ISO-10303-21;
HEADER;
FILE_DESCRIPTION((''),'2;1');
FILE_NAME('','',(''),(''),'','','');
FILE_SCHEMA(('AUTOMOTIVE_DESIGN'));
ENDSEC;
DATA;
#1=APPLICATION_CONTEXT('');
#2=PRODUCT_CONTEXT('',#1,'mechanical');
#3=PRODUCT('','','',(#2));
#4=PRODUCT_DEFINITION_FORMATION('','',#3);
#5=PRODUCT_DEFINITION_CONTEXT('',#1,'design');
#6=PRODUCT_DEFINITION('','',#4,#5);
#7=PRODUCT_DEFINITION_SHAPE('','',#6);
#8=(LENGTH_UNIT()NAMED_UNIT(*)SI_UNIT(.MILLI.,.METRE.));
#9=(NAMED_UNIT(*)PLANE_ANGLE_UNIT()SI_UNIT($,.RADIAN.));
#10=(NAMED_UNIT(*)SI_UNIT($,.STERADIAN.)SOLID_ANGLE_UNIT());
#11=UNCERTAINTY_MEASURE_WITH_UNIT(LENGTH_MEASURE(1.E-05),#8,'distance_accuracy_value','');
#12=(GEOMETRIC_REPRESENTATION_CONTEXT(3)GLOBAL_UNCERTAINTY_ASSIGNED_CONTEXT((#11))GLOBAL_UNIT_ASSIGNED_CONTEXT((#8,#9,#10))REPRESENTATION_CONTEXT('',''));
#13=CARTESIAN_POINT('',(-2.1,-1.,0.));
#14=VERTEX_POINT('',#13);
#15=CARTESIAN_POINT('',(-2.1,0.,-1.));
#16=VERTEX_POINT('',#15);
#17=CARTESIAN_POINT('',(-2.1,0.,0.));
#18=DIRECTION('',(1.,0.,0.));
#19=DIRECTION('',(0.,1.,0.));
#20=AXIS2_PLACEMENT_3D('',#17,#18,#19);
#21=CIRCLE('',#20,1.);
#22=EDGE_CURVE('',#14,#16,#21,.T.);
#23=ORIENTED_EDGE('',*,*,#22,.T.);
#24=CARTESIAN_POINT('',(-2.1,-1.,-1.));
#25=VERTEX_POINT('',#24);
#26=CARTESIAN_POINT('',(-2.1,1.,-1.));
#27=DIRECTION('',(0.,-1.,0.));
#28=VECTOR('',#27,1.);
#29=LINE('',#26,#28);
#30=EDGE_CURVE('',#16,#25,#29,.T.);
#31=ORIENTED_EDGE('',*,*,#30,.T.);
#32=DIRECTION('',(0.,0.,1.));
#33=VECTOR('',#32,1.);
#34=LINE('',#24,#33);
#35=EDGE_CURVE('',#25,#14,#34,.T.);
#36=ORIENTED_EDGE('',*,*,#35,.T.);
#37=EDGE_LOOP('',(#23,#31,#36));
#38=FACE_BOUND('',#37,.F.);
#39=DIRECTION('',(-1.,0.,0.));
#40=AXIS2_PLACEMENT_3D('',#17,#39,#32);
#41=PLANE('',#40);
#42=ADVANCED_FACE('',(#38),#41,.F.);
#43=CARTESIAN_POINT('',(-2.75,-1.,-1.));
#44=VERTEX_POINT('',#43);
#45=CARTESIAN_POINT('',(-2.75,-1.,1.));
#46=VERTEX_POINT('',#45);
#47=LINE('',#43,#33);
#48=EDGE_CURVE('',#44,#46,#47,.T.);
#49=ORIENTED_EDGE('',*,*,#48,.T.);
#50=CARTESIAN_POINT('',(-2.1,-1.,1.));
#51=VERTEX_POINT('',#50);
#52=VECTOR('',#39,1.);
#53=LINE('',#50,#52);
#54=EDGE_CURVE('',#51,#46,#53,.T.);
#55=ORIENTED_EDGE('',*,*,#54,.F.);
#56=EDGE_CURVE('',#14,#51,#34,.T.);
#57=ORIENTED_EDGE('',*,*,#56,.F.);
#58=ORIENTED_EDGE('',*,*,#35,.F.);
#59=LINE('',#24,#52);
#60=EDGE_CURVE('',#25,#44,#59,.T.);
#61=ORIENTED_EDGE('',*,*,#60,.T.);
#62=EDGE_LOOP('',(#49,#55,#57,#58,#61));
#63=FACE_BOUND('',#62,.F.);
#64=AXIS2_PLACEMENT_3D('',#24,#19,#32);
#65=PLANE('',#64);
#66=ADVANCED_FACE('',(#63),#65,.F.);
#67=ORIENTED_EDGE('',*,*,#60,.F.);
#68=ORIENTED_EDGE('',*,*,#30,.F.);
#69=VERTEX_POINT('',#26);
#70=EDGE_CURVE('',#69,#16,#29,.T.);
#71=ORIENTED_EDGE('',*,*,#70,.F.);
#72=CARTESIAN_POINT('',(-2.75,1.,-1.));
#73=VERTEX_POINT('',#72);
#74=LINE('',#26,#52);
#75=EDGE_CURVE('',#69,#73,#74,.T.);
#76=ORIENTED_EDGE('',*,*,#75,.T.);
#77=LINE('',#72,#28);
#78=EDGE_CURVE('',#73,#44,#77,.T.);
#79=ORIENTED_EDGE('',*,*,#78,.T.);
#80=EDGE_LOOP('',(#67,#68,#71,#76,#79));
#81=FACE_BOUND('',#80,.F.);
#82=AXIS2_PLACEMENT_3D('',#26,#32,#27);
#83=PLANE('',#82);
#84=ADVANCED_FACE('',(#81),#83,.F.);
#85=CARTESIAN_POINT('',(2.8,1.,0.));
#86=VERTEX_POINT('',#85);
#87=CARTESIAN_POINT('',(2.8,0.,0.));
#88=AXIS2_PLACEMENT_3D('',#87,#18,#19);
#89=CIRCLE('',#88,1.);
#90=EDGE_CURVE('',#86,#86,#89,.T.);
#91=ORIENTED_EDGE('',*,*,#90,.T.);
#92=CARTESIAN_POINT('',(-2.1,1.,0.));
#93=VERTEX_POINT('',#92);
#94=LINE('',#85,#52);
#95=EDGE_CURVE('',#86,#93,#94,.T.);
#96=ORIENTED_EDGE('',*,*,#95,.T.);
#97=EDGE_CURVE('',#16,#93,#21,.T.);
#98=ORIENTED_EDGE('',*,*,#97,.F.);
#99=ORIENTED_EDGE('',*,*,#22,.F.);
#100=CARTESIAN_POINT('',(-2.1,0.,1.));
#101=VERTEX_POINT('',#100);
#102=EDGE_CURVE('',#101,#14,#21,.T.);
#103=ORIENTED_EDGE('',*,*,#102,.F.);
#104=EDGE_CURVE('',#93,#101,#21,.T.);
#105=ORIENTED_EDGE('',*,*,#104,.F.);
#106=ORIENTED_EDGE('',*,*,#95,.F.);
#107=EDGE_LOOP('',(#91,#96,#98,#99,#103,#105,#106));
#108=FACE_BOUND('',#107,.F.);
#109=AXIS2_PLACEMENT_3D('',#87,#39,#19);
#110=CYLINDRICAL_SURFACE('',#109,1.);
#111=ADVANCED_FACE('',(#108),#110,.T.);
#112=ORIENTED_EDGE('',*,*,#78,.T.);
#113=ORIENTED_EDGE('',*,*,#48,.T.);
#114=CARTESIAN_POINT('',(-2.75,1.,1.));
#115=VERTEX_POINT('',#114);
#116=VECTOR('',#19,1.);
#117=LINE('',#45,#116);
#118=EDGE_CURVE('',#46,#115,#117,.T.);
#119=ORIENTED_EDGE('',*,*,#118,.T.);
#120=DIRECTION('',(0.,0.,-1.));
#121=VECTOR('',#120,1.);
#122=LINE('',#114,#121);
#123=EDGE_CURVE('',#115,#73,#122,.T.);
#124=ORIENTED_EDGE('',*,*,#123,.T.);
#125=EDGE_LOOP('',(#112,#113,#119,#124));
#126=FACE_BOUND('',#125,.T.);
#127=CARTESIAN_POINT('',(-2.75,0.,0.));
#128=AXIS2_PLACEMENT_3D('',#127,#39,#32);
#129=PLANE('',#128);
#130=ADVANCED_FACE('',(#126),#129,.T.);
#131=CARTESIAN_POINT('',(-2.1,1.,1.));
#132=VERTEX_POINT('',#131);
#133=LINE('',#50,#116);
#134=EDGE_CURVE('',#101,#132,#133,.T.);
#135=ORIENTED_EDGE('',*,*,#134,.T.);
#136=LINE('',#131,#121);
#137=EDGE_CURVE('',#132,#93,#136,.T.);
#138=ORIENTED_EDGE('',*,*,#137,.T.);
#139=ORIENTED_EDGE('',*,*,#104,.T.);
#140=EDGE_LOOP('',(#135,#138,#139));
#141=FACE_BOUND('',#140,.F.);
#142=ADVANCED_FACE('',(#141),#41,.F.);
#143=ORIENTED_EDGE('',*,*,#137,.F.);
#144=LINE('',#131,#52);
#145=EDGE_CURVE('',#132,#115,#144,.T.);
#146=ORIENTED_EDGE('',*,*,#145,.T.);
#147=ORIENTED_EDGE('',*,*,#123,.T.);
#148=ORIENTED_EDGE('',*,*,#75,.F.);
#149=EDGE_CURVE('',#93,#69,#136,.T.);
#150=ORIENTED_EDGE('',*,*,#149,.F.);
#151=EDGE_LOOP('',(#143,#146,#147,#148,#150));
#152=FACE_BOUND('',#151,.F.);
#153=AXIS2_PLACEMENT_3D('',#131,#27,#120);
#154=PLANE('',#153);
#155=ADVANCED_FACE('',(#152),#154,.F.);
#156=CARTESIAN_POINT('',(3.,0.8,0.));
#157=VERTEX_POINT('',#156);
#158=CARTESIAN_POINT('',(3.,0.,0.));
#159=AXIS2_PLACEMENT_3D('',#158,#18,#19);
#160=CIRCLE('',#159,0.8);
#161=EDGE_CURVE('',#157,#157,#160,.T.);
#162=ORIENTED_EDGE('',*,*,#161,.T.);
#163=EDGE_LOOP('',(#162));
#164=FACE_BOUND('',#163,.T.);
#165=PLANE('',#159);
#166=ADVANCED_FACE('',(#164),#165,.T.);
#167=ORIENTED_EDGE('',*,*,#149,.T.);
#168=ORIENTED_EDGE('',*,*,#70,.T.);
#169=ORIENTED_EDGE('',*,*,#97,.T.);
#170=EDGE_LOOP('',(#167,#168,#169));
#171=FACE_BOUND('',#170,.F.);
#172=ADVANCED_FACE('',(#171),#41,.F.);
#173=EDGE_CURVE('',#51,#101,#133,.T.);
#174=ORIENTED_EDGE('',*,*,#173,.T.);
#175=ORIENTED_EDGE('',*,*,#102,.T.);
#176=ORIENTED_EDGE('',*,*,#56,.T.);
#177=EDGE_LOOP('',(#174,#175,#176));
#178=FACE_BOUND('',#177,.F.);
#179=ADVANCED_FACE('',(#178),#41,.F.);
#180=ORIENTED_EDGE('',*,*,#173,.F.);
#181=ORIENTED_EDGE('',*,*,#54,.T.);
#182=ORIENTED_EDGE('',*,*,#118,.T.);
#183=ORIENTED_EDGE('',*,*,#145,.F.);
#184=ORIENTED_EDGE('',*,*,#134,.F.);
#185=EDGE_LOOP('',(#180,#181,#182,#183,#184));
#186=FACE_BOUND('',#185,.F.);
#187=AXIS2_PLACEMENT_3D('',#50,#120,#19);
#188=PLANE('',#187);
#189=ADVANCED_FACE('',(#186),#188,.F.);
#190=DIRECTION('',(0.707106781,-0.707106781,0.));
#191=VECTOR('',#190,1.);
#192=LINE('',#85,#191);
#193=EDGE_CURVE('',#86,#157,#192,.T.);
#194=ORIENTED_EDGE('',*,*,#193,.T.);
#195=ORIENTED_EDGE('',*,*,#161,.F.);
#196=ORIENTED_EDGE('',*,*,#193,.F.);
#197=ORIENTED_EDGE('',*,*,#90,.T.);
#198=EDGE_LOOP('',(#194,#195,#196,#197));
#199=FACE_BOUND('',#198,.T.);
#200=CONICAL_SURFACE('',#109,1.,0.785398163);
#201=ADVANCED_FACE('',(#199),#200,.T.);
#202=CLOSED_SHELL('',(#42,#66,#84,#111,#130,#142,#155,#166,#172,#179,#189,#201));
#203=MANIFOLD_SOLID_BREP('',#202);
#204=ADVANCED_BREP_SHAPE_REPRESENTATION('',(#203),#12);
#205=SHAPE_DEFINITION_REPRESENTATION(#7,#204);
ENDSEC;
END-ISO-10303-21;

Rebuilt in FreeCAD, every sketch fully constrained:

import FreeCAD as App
import Part
import Sketcher
from FreeCAD import Vector
Q = App.Units.Quantity


def add_polygon(sketch, points):
    """Adds a closed chain of lines whose ends are joined by coincident constraints."""
    first, n = sketch.GeometryCount, len(points)
    for a, b in zip(points, points[1:] + points[:1]):
        sketch.addGeometry(Part.LineSegment(App.Vector(*a, 0), App.Vector(*b, 0)), False)
    for i in range(n):
        sketch.addConstraint(Sketcher.Constraint("Coincident", first + i, 2, first + (i + 1) % n, 1))

doc = App.newDocument("Part")
body = doc.addObject("PartDesign::Body", "Body")

sketch1 = doc.addObject("Sketcher::SketchObject", "Sketch")
body.addObject(sketch1)
sketch1.AttachmentSupport = (doc.XY_Plane, [""])
sketch1.MapMode = "FlatFace"
add_polygon(sketch1, [(-2.1, 1), (-2.1, 0), (3, 0), (3, 0.8), (2.8, 1)])
sketch1.addConstraint(Sketcher.Constraint("Vertical", 0))
sketch1.addConstraint(Sketcher.Constraint("Horizontal", 1))
sketch1.addConstraint(Sketcher.Constraint("Vertical", 2))
sketch1.addConstraint(Sketcher.Constraint("Horizontal", 4))
sketch1.addConstraint(Sketcher.Constraint("PointOnObject", 0, 2, -1))
sketch1.addConstraint(Sketcher.Constraint("DistanceX", 0, 2, -1, 1, Q("2.1 mm")))
sketch1.addConstraint(Sketcher.Constraint("DistanceX", -1, 1, 3, 2, Q("2.8 mm")))
sketch1.addConstraint(Sketcher.Constraint("DistanceX", 3, 2, 2, 2, Q("0.2 mm")))
sketch1.addConstraint(Sketcher.Constraint("DistanceY", 2, 2, 3, 2, Q("0.2 mm")))
sketch1.addConstraint(Sketcher.Constraint("DistanceY", 0, 2, 0, 1, Q("1 mm")))
revolution = doc.addObject("PartDesign::Revolution", "Revolution")
body.addObject(revolution)
revolution.Profile = sketch1
revolution.ReferenceAxis = (sketch1, ["H_Axis"])
revolution.Angle = 360

sketch2 = doc.addObject("Sketcher::SketchObject", "Sketch001")
body.addObject(sketch2)
sketch2.AttachmentSupport = (doc.YZ_Plane, [""])
sketch2.MapMode = "FlatFace"
sketch2.AttachmentOffset = App.Placement(Vector(0, 0, -2.1), App.Rotation())
add_polygon(sketch2, [(1, -1), (-1, -1), (-1, 1), (1, 1)])
sketch2.addConstraint(Sketcher.Constraint("Horizontal", 0))
sketch2.addConstraint(Sketcher.Constraint("Vertical", 1))
sketch2.addConstraint(Sketcher.Constraint("Horizontal", 2))
sketch2.addConstraint(Sketcher.Constraint("Vertical", 3))
sketch2.addConstraint(Sketcher.Constraint("Symmetric", 0, 2, 2, 2, -1, 1))
sketch2.addConstraint(Sketcher.Constraint("Equal", 2, 1))
sketch2.addConstraint(Sketcher.Constraint("DistanceX", 0, 2, 0, 1, Q("2 mm")))
pad1 = doc.addObject("PartDesign::Pad", "Pad")
body.addObject(pad1)
pad1.Profile = sketch2
pad1.Length = 0.65
pad1.Reversed = True

doc.recompute()
